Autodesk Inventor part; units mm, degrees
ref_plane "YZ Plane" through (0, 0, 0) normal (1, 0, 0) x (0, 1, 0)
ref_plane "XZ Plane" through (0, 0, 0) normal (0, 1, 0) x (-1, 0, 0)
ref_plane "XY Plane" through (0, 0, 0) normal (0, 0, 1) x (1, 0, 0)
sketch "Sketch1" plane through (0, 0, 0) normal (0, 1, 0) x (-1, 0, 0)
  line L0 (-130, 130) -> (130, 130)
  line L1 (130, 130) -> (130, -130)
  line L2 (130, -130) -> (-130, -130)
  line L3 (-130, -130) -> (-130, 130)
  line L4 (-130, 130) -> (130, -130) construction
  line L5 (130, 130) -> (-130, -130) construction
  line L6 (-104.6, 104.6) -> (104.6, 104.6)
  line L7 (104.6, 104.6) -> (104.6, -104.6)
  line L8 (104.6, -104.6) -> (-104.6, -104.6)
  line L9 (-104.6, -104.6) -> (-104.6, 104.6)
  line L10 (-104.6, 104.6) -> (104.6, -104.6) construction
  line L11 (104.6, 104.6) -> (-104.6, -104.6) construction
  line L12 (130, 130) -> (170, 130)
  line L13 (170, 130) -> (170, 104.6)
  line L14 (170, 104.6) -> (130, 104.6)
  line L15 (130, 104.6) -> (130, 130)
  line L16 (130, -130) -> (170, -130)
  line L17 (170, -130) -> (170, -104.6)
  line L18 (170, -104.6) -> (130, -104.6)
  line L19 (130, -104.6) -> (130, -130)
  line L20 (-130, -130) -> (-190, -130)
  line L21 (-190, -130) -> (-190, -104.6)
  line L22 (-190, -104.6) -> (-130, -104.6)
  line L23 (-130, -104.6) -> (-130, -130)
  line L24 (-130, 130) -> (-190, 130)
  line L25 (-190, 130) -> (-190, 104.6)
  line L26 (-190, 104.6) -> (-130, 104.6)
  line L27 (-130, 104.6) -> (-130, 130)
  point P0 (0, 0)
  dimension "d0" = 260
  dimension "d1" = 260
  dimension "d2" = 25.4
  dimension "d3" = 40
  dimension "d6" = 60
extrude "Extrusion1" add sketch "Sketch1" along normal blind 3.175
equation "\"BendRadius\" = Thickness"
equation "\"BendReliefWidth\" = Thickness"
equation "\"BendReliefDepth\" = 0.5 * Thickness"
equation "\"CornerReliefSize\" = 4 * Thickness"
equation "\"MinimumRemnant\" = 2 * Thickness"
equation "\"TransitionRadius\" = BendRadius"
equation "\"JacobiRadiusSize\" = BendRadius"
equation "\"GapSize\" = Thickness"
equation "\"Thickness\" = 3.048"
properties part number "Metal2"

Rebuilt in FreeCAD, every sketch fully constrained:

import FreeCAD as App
import Part
import Sketcher
Q = App.Units.Quantity

doc = App.newDocument("Part")
params = doc.addObject("Spreadsheet::Sheet", "Params")
for row, (alias, value) in enumerate([
    ("sketch1_width", "60 mm"),
    ("sketch1_width2", "40 mm"),
    ("sketch1_height", "25.4 mm"),
    ("pad1_length", "3.175 mm"),
], start=1):
    params.set(f"A{row}", alias)
    params.set(f"B{row}", "=" + value)
    params.setAlias(f"B{row}", alias)

body = doc.addObject("PartDesign::Body", "Body")

sketch1 = body.newObject("Sketcher::SketchObject", "Sketch")
sketch1.AttachmentSupport = (doc.getObject("XZ_Plane"), [""])
sketch1.MapMode = "FlatFace"
sketch1.addGeometry([
    Part.LineSegment(App.Vector(190, 130, 0), App.Vector(190, 105, 0)),
    Part.LineSegment(App.Vector(190, 105, 0), App.Vector(130, 105, 0)),
    Part.LineSegment(App.Vector(130, 105, 0), App.Vector(130, -105, 0)),
    Part.LineSegment(App.Vector(130, -105, 0), App.Vector(190, -105, 0)),
    Part.LineSegment(App.Vector(190, -105, 0), App.Vector(190, -130, 0)),
    Part.LineSegment(App.Vector(190, -130, 0), App.Vector(-170, -130, 0)),
    Part.LineSegment(App.Vector(-170, -130, 0), App.Vector(-170, -105, 0)),
    Part.LineSegment(App.Vector(-170, -105, 0), App.Vector(-130, -105, 0)),
    Part.LineSegment(App.Vector(-130, -105, 0), App.Vector(-130, 105, 0)),
    Part.LineSegment(App.Vector(-130, 105, 0), App.Vector(-170, 105, 0)),
    Part.LineSegment(App.Vector(-170, 105, 0), App.Vector(-170, 130, 0)),
    Part.LineSegment(App.Vector(-170, 130, 0), App.Vector(190, 130, 0)),
    Part.LineSegment(App.Vector(105, -105, 0), App.Vector(105, 105, 0)),
    Part.LineSegment(App.Vector(105, 105, 0), App.Vector(-105, 105, 0)),
    Part.LineSegment(App.Vector(-105, 105, 0), App.Vector(-105, -105, 0)),
    Part.LineSegment(App.Vector(-105, -105, 0), App.Vector(105, -105, 0)),
], False)
sketch1.addConstraint([
    Sketcher.Constraint("Coincident", 0, 2, 1, 1),
    Sketcher.Constraint("Coincident", 1, 2, 2, 1),
    Sketcher.Constraint("Coincident", 2, 2, 3, 1),
    Sketcher.Constraint("Coincident", 3, 2, 4, 1),
    Sketcher.Constraint("Coincident", 4, 2, 5, 1),
    Sketcher.Constraint("Coincident", 5, 2, 6, 1),
    Sketcher.Constraint("Coincident", 6, 2, 7, 1),
    Sketcher.Constraint("Coincident", 7, 2, 8, 1),
    Sketcher.Constraint("Coincident", 8, 2, 9, 1),
    Sketcher.Constraint("Coincident", 9, 2, 10, 1),
    Sketcher.Constraint("Coincident", 10, 2, 11, 1),
    Sketcher.Constraint("Coincident", 11, 2, 0, 1),
    Sketcher.Constraint("Coincident", 12, 2, 13, 1),
    Sketcher.Constraint("Coincident", 13, 2, 14, 1),
    Sketcher.Constraint("Coincident", 14, 2, 15, 1),
    Sketcher.Constraint("Coincident", 15, 2, 12, 1),
    Sketcher.Constraint("Vertical", 0),
    Sketcher.Constraint("Horizontal", 1),
    Sketcher.Constraint("Vertical", 2),
    Sketcher.Constraint("Horizontal", 3),
    Sketcher.Constraint("Vertical", 4),
    Sketcher.Constraint("Horizontal", 5),
    Sketcher.Constraint("Vertical", 6),
    Sketcher.Constraint("Horizontal", 7),
    Sketcher.Constraint("Vertical", 8),
    Sketcher.Constraint("Horizontal", 9),
    Sketcher.Constraint("Vertical", 10),
    Sketcher.Constraint("Horizontal", 11),
    Sketcher.Constraint("Vertical", 12),
    Sketcher.Constraint("Horizontal", 13),
    Sketcher.Constraint("Vertical", 14),
    Sketcher.Constraint("Horizontal", 15),
    Sketcher.Constraint("Symmetric", 1, 2, 7, 2, -1, 1),
    Sketcher.Constraint("Symmetric", 12, 2, 14, 2, -1, 1),
    Sketcher.Constraint("Symmetric", 0, 2, 3, 2, -1),
    Sketcher.Constraint("Symmetric", 6, 2, 9, 2, -1),
    Sketcher.Constraint("Horizontal", 9, 2, 12, 2),
    Sketcher.Constraint("Equal", 15, 2),
    Sketcher.Constraint("Equal", 0, 4),
    Sketcher.Constraint("DistanceX", 1, 2, 1, 1, Q("60 mm")),
    Sketcher.Constraint("DistanceX", 7, 1, 7, 2, Q("40 mm")),
    Sketcher.Constraint("DistanceY", 0, 2, 0, 1, Q("25.4 mm")),
    Sketcher.Constraint("DistanceX", 7, 2, 2, 2, Q("260 mm")),
    Sketcher.Constraint("DistanceY", 5, 2, 10, 2, Q("260 mm")),
])
sketch1.setExpression("Constraints[39]", "Params.sketch1_width")
sketch1.setExpression("Constraints[40]", "Params.sketch1_width2")
sketch1.setExpression("Constraints[41]", "Params.sketch1_height")
pad1 = body.newObject("PartDesign::Pad", "Pad")
pad1.Profile = sketch1
pad1.setExpression("Length", "Params.pad1_length")
pad1.Reversed = True

doc.recompute()
